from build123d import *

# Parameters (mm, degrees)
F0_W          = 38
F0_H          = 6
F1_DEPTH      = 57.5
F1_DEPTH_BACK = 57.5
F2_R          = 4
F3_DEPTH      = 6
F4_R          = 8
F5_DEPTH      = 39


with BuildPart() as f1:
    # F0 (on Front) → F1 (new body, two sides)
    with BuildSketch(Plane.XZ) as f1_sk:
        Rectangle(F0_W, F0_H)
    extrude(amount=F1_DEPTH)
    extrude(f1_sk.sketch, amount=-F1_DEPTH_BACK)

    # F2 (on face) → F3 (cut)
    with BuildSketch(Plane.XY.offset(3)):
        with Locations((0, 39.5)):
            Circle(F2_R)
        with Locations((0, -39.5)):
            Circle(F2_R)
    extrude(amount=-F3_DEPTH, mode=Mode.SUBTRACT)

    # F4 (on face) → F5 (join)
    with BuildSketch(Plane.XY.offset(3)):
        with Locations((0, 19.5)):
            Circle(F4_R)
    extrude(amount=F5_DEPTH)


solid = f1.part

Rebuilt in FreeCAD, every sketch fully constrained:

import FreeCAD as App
import Part
import Sketcher


def add_polygon(sketch, points):
    """Adds a closed chain of lines whose ends are joined by coincident constraints."""
    first, n = sketch.GeometryCount, len(points)
    for a, b in zip(points, points[1:] + points[:1]):
        sketch.addGeometry(Part.LineSegment(App.Vector(*a, 0), App.Vector(*b, 0)), False)
    for i in range(n):
        sketch.addConstraint(Sketcher.Constraint("Coincident", first + i, 2, first + (i + 1) % n, 1))

doc = App.newDocument("Part")
params = doc.addObject("Spreadsheet::Sheet", "Params")
for row, (alias, value) in enumerate([
    ("sketch1_width", "38 mm"),
    ("sketch1_height", "6 mm"),
    ("pad1_length", "57.5 mm"),
    ("pad1_length2", "57.5 mm"),
    ("sketch2_diameter", "8 mm"),
    ("pocket1_length", "6 mm"),
    ("sketch3_diameter", "16 mm"),
    ("pad2_length", "39 mm"),
], start=1):
    params.set(f"A{row}", alias)
    params.set(f"B{row}", "=" + value)
    params.setAlias(f"B{row}", alias)

body = doc.addObject("PartDesign::Body", "Body")

sketch1 = body.newObject("Sketcher::SketchObject", "Sketch")
sketch1.AttachmentSupport = (doc.getObject("XZ_Plane"), [""])
sketch1.MapMode = "FlatFace"
add_polygon(sketch1, [(-19, 3), (-19, -3), (19, -3), (19, 3)])
sketch1.addConstraint([
    Sketcher.Constraint("Vertical", 0),
    Sketcher.Constraint("Horizontal", 1),
    Sketcher.Constraint("Vertical", 2),
    Sketcher.Constraint("Horizontal", 3),
    Sketcher.Constraint("Symmetric", 0, 2, 2, 2, -1, 1),
    Sketcher.Constraint("DistanceX", 1, 1, 1, 2, 38.0),
    Sketcher.Constraint("DistanceY", 0, 2, 0, 1, 6.0),
])
sketch1.setExpression("Constraints[9]", "Params.sketch1_width")
sketch1.setExpression("Constraints[10]", "Params.sketch1_height")
pad1 = body.newObject("PartDesign::Pad", "Pad")
pad1.Profile = sketch1
pad1.Type = "TwoLengths"
pad1.setExpression("Length", "Params.pad1_length")
pad1.setExpression("Length2", "Params.pad1_length2")

sketch2 = body.newObject("Sketcher::SketchObject", "Sketch001")
sketch2.AttachmentSupport = (doc.getObject("XY_Plane"), [""])
sketch2.MapMode = "FlatFace"
sketch2.AttachmentOffset = App.Placement(App.Vector(0, 0, 3), App.Rotation())
sketch2.addGeometry([
    Part.Circle(App.Vector(0, 39.5, 0), App.Vector(0, 0, 1), 4),
    Part.Circle(App.Vector(0, -39.5, 0), App.Vector(0, 0, 1), 4),
], False)
sketch2.addConstraint([
    Sketcher.Constraint("Equal", 0, 1),
    Sketcher.Constraint("Symmetric", 0, 3, 1, 3, -1, 1),
    Sketcher.Constraint("PointOnObject", 0, 3, -2),
    Sketcher.Constraint("Diameter", 0, 8.0),
    Sketcher.Constraint("DistanceY", 1, 3, 0, 3, 79.0),
])
sketch2.setExpression("Constraints[3]", "Params.sketch2_diameter")
pocket1 = body.newObject("PartDesign::Pocket", "Pocket")
pocket1.Profile = sketch2
pocket1.setExpression("Length", "Params.pocket1_length")

sketch3 = body.newObject("Sketcher::SketchObject", "Sketch002")
sketch3.AttachmentSupport = (doc.getObject("XY_Plane"), [""])
sketch3.MapMode = "FlatFace"
sketch3.AttachmentOffset = App.Placement(App.Vector(0, 0, 3), App.Rotation())
sketch3.addGeometry(Part.Circle(App.Vector(0, 20, 0), App.Vector(0, 0, 1), 8), False)
sketch3.addConstraint([
    Sketcher.Constraint("PointOnObject", 0, 3, -2),
    Sketcher.Constraint("Diameter", 0, 16.0),
    Sketcher.Constraint("DistanceY", -1, 1, 0, 3, 19.5),
])
sketch3.setExpression("Constraints[1]", "Params.sketch3_diameter")
pad2 = body.newObject("PartDesign::Pad", "Pad001")
pad2.Profile = sketch3
pad2.setExpression("Length", "Params.pad2_length")

doc.recompute()
